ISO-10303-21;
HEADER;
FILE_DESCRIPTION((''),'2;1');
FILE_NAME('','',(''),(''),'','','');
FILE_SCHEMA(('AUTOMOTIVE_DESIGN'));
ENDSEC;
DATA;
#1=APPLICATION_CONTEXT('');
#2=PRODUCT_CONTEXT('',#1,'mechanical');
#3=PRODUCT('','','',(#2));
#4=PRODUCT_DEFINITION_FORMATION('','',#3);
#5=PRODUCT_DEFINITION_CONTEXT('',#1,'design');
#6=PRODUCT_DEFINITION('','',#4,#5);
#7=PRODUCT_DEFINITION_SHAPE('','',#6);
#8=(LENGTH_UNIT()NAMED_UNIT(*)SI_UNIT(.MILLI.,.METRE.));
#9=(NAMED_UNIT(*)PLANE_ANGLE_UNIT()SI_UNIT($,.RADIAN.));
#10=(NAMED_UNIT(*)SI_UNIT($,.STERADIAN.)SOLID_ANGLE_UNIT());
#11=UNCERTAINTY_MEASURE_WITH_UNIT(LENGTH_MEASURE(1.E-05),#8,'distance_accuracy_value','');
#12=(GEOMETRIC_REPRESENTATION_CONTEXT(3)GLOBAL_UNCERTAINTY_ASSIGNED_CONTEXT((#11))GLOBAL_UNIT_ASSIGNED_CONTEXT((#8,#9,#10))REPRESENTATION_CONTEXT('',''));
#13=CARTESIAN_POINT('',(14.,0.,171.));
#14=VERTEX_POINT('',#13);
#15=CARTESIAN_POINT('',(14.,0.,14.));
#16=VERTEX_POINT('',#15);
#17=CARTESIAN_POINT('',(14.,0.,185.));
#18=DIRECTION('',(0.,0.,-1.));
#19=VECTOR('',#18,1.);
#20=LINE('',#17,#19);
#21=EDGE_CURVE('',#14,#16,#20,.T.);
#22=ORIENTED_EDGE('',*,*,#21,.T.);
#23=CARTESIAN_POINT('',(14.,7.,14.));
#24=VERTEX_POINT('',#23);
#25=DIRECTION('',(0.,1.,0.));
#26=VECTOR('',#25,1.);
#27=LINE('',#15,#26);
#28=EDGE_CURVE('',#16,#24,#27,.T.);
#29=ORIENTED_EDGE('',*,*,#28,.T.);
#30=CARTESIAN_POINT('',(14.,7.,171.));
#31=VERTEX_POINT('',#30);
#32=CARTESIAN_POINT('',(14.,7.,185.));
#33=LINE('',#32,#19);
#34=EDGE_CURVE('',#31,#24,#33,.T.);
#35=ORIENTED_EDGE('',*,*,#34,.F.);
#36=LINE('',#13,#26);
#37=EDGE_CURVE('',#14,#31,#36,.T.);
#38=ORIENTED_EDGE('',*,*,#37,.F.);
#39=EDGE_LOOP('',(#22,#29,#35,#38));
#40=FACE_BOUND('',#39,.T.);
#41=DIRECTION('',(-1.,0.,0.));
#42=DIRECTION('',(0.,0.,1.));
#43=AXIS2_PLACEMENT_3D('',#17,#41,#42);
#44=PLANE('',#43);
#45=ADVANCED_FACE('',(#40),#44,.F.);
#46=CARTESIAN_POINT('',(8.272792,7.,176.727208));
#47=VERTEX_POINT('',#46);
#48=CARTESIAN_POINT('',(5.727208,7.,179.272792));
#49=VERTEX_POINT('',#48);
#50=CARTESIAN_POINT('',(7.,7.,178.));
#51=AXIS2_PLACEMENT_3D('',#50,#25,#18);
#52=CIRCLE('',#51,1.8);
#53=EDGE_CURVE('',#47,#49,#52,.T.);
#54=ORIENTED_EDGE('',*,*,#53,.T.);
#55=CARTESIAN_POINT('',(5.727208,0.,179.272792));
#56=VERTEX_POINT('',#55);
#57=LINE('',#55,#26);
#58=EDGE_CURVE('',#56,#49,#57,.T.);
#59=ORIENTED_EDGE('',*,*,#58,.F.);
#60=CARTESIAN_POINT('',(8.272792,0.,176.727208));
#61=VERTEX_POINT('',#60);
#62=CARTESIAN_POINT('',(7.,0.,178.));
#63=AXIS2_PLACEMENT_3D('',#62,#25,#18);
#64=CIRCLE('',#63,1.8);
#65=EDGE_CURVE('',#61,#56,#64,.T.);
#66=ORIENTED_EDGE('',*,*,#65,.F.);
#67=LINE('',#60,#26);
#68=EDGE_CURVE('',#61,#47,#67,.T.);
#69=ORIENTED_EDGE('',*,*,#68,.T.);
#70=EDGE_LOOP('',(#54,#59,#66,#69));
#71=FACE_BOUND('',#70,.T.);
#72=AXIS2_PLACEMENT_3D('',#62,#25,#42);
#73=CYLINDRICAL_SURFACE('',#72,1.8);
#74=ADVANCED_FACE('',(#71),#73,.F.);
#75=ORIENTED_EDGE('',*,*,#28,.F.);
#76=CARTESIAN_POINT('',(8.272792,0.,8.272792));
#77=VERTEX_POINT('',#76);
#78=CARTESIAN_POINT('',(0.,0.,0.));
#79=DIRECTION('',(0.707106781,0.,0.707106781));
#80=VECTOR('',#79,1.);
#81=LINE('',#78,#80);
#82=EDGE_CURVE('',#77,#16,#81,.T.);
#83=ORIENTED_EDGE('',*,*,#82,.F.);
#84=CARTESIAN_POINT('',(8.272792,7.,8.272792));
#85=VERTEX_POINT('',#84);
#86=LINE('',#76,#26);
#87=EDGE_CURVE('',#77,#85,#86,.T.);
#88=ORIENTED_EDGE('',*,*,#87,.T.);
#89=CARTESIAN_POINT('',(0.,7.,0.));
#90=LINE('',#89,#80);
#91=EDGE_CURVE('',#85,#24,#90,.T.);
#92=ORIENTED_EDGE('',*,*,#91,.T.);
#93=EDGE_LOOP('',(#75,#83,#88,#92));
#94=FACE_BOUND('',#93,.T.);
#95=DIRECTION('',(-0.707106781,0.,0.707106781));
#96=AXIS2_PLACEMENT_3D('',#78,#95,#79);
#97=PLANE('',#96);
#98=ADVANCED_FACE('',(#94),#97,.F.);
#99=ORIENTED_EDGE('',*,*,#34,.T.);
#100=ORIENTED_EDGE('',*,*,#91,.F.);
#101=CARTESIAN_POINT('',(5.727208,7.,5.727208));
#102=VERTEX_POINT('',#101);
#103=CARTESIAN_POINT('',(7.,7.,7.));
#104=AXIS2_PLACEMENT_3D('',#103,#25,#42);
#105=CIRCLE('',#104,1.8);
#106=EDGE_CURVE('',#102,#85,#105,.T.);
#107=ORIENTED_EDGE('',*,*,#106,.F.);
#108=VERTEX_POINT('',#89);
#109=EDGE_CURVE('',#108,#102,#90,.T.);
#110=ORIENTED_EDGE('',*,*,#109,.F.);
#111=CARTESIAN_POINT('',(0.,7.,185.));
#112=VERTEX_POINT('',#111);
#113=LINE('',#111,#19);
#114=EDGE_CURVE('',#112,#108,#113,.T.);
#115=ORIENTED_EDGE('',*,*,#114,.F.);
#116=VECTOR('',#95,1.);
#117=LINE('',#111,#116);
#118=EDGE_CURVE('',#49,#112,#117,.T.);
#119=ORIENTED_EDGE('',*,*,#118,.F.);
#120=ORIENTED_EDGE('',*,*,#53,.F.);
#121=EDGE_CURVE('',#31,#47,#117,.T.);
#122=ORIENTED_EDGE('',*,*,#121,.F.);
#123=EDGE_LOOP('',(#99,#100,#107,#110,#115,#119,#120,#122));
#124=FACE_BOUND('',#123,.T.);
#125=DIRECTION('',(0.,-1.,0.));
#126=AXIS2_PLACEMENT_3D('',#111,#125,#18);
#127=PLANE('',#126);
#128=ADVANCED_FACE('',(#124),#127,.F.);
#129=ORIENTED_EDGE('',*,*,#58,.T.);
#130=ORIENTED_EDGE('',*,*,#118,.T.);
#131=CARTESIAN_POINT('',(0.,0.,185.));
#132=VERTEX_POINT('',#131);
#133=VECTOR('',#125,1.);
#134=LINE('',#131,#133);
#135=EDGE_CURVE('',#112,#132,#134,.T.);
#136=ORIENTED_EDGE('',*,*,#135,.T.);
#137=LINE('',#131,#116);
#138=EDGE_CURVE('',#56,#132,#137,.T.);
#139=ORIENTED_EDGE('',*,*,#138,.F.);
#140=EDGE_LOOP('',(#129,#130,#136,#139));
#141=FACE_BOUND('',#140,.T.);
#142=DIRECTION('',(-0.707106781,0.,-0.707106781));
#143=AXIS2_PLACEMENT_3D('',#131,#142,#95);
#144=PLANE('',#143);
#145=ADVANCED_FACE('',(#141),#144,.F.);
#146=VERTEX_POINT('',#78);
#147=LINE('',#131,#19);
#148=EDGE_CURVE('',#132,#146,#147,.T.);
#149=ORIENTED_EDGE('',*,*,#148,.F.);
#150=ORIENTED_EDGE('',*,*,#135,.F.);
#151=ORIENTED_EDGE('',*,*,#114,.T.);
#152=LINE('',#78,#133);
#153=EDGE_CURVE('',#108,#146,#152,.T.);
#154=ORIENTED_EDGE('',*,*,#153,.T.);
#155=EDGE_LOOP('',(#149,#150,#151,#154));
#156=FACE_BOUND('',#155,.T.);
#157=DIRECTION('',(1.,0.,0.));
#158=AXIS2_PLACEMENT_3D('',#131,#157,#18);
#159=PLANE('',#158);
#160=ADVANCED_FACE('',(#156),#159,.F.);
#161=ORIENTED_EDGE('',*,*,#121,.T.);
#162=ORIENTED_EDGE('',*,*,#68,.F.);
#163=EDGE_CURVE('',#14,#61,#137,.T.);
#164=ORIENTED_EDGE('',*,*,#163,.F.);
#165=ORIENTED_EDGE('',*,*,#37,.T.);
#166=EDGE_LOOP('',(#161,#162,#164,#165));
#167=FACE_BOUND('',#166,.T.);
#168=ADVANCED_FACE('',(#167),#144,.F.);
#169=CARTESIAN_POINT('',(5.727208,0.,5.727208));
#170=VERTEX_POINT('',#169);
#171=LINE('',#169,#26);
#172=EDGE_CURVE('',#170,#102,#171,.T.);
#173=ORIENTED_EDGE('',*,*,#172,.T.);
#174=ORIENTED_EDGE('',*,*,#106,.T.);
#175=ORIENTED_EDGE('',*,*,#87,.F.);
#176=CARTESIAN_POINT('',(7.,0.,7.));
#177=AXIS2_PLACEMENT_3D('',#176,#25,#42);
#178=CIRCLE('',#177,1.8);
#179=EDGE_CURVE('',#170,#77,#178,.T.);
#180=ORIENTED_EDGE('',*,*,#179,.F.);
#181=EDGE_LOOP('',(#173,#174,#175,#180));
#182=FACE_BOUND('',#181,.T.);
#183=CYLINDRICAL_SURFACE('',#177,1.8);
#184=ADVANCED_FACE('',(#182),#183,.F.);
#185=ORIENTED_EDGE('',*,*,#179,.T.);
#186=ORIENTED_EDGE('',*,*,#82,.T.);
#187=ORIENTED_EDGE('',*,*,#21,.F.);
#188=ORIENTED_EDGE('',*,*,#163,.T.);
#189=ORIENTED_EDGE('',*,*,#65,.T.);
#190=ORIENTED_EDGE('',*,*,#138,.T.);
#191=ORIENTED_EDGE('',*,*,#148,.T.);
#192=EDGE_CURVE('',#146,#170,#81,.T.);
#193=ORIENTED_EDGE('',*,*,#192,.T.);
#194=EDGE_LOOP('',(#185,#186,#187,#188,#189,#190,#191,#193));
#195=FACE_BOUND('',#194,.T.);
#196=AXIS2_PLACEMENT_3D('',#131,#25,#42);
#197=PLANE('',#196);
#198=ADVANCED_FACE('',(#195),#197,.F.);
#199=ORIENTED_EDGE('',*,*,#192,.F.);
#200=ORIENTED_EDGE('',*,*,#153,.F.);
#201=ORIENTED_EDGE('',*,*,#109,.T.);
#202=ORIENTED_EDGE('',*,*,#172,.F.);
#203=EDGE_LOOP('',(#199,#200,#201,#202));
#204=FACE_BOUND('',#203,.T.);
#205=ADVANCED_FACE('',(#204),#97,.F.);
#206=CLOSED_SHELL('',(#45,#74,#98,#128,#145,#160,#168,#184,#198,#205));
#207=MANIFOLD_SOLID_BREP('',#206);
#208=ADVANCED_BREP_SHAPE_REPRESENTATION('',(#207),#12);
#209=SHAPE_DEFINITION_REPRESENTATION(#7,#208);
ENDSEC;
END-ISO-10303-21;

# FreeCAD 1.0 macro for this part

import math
import FreeCAD as App
import Part
import Sketcher

V = App.Vector
Q = App.Units.Quantity


def add_polygon(sketch, points):
    """Adds a closed chain of lines whose ends are joined by coincident constraints."""
    first, n = sketch.GeometryCount, len(points)
    for a, b in zip(points, points[1:] + points[:1]):
        sketch.addGeometry(Part.LineSegment(App.Vector(*a, 0), App.Vector(*b, 0)), False)
    for i in range(n):
        sketch.addConstraint(Sketcher.Constraint("Coincident", first + i, 2, first + (i + 1) % n, 1))

doc = App.newDocument("Part")
body = doc.addObject("PartDesign::Body", "Body")

# Sketch on XY plane
sketch1 = body.newObject("Sketcher::SketchObject", "Sketch")
sketch1.AttachmentSupport = (doc.getObject("XY_Plane"), [""])
sketch1.MapMode = "FlatFace"
add_polygon(sketch1, [(0, 7), (0, 0), (14, 0), (14, 7)])  # lines 0-3
sketch1.addConstraint(Sketcher.Constraint("Vertical", 0))
sketch1.addConstraint(Sketcher.Constraint("Horizontal", 1))
sketch1.addConstraint(Sketcher.Constraint("Vertical", 2))
sketch1.addConstraint(Sketcher.Constraint("Horizontal", 3))
sketch1.addConstraint(Sketcher.Constraint("Coincident", 0, 2, -1, 1))
sketch1.addConstraint(Sketcher.Constraint("DistanceX", 1, 1, 1, 2, Q("14 mm")))
sketch1.addConstraint(Sketcher.Constraint("DistanceY", 0, 2, 0, 1, Q("7 mm")))
pad1 = body.newObject("PartDesign::Pad", "Pad")
pad1.Profile = sketch1
pad1.Length = 185

# Sketch on XZ plane
sketch2 = body.newObject("Sketcher::SketchObject", "Sketch001")
sketch2.AttachmentSupport = (doc.getObject("XZ_Plane"), [""])
sketch2.MapMode = "FlatFace"
sketch2.AttachmentOffset = App.Placement(V(0, 0, -7), App.Rotation())
add_polygon(sketch2, [(0, 0), (14, 14), (14, 0)])  # lines 0-2
add_polygon(sketch2, [(0, 185), (14, 185), (14, 171)])  # lines 3-5
sketch2.addConstraint(Sketcher.Constraint("Vertical", 1))
sketch2.addConstraint(Sketcher.Constraint("Horizontal", 2))
sketch2.addConstraint(Sketcher.Constraint("Horizontal", 3))
sketch2.addConstraint(Sketcher.Constraint("Vertical", 4))
sketch2.addConstraint(Sketcher.Constraint("Coincident", 2, 2, -1, 1))
sketch2.addConstraint(Sketcher.Constraint("PointOnObject", 5, 2, -2))
sketch2.addConstraint(Sketcher.Constraint("Perpendicular", 0, 5))
sketch2.addConstraint(Sketcher.Constraint("Vertical", 1, 2, 3, 2))
sketch2.addConstraint(Sketcher.Constraint("Equal", 3, 1))
sketch2.addConstraint(Sketcher.Constraint("DistanceX", 2, 2, 2, 1, Q("14 mm")))
sketch2.addConstraint(Sketcher.Constraint("DistanceY", -1, 1, 3, 2, Q("185 mm")))
pocket1 = body.newObject("PartDesign::Pocket", "Pocket")
pocket1.Profile = sketch2
pocket1.Type = "ThroughAll"
pocket1.Reversed = True

# Sketch on XZ plane
sketch3 = body.newObject("Sketcher::SketchObject", "Sketch002")
sketch3.AttachmentSupport = (doc.getObject("XZ_Plane"), [""])
sketch3.MapMode = "FlatFace"
sketch3.AttachmentOffset = App.Placement(V(0, 0, -7), App.Rotation())
sketch3.addGeometry(Part.LineSegment(V(5.727208, 179.272792, 0), V(8.272792, 176.727208, 0)), False)
sketch3.addGeometry(Part.ArcOfCircle(Part.Circle(V(7, 178, 0), V(0, 0, 1), 1.8), math.radians(135), math.radians(315)), False)
sketch3.addGeometry(Part.LineSegment(V(8.272792, 8.272792, 0), V(5.727208, 5.727208, 0)), False)
sketch3.addGeometry(Part.ArcOfCircle(Part.Circle(V(7, 7, 0), V(0, 0, 1), 1.8), math.radians(45), math.radians(225)), False)
sketch3.addConstraint(Sketcher.Constraint("Coincident", 0, 1, 1, 1))
sketch3.addConstraint(Sketcher.Constraint("Coincident", 1, 2, 0, 2))
sketch3.addConstraint(Sketcher.Constraint("Coincident", 2, 1, 3, 1))
sketch3.addConstraint(Sketcher.Constraint("Coincident", 3, 2, 2, 2))
sketch3.addConstraint(Sketcher.Constraint("Equal", 1, 3))
sketch3.addConstraint(Sketcher.Constraint("Perpendicular", 0, 2))
sketch3.addConstraint(Sketcher.Constraint("Vertical", 1, 3, 3, 3))
sketch3.addConstraint(Sketcher.Constraint("Vertical", 1, 2, 2, 1))
sketch3.addConstraint(Sketcher.Constraint("Vertical", 0, 1, 3, 2))
sketch3.addConstraint(Sketcher.Constraint("Radius", 1, Q("1.8 mm")))
sketch3.addConstraint(Sketcher.Constraint("DistanceX", -1, 1, 1, 3, Q("7 mm")))
sketch3.addConstraint(Sketcher.Constraint("DistanceY", -1, 1, 1, 3, Q("178 mm")))
sketch3.addConstraint(Sketcher.Constraint("DistanceY", -1, 1, 3, 3, Q("7 mm")))
sketch3.addConstraint(Sketcher.Constraint("DistanceY", 2, 1, 0, 1, Q("171 mm")))
pocket2 = body.newObject("PartDesign::Pocket", "Pocket001")
pocket2.Profile = sketch3
pocket2.Type = "ThroughAll"
pocket2.Reversed = True

doc.recompute()
